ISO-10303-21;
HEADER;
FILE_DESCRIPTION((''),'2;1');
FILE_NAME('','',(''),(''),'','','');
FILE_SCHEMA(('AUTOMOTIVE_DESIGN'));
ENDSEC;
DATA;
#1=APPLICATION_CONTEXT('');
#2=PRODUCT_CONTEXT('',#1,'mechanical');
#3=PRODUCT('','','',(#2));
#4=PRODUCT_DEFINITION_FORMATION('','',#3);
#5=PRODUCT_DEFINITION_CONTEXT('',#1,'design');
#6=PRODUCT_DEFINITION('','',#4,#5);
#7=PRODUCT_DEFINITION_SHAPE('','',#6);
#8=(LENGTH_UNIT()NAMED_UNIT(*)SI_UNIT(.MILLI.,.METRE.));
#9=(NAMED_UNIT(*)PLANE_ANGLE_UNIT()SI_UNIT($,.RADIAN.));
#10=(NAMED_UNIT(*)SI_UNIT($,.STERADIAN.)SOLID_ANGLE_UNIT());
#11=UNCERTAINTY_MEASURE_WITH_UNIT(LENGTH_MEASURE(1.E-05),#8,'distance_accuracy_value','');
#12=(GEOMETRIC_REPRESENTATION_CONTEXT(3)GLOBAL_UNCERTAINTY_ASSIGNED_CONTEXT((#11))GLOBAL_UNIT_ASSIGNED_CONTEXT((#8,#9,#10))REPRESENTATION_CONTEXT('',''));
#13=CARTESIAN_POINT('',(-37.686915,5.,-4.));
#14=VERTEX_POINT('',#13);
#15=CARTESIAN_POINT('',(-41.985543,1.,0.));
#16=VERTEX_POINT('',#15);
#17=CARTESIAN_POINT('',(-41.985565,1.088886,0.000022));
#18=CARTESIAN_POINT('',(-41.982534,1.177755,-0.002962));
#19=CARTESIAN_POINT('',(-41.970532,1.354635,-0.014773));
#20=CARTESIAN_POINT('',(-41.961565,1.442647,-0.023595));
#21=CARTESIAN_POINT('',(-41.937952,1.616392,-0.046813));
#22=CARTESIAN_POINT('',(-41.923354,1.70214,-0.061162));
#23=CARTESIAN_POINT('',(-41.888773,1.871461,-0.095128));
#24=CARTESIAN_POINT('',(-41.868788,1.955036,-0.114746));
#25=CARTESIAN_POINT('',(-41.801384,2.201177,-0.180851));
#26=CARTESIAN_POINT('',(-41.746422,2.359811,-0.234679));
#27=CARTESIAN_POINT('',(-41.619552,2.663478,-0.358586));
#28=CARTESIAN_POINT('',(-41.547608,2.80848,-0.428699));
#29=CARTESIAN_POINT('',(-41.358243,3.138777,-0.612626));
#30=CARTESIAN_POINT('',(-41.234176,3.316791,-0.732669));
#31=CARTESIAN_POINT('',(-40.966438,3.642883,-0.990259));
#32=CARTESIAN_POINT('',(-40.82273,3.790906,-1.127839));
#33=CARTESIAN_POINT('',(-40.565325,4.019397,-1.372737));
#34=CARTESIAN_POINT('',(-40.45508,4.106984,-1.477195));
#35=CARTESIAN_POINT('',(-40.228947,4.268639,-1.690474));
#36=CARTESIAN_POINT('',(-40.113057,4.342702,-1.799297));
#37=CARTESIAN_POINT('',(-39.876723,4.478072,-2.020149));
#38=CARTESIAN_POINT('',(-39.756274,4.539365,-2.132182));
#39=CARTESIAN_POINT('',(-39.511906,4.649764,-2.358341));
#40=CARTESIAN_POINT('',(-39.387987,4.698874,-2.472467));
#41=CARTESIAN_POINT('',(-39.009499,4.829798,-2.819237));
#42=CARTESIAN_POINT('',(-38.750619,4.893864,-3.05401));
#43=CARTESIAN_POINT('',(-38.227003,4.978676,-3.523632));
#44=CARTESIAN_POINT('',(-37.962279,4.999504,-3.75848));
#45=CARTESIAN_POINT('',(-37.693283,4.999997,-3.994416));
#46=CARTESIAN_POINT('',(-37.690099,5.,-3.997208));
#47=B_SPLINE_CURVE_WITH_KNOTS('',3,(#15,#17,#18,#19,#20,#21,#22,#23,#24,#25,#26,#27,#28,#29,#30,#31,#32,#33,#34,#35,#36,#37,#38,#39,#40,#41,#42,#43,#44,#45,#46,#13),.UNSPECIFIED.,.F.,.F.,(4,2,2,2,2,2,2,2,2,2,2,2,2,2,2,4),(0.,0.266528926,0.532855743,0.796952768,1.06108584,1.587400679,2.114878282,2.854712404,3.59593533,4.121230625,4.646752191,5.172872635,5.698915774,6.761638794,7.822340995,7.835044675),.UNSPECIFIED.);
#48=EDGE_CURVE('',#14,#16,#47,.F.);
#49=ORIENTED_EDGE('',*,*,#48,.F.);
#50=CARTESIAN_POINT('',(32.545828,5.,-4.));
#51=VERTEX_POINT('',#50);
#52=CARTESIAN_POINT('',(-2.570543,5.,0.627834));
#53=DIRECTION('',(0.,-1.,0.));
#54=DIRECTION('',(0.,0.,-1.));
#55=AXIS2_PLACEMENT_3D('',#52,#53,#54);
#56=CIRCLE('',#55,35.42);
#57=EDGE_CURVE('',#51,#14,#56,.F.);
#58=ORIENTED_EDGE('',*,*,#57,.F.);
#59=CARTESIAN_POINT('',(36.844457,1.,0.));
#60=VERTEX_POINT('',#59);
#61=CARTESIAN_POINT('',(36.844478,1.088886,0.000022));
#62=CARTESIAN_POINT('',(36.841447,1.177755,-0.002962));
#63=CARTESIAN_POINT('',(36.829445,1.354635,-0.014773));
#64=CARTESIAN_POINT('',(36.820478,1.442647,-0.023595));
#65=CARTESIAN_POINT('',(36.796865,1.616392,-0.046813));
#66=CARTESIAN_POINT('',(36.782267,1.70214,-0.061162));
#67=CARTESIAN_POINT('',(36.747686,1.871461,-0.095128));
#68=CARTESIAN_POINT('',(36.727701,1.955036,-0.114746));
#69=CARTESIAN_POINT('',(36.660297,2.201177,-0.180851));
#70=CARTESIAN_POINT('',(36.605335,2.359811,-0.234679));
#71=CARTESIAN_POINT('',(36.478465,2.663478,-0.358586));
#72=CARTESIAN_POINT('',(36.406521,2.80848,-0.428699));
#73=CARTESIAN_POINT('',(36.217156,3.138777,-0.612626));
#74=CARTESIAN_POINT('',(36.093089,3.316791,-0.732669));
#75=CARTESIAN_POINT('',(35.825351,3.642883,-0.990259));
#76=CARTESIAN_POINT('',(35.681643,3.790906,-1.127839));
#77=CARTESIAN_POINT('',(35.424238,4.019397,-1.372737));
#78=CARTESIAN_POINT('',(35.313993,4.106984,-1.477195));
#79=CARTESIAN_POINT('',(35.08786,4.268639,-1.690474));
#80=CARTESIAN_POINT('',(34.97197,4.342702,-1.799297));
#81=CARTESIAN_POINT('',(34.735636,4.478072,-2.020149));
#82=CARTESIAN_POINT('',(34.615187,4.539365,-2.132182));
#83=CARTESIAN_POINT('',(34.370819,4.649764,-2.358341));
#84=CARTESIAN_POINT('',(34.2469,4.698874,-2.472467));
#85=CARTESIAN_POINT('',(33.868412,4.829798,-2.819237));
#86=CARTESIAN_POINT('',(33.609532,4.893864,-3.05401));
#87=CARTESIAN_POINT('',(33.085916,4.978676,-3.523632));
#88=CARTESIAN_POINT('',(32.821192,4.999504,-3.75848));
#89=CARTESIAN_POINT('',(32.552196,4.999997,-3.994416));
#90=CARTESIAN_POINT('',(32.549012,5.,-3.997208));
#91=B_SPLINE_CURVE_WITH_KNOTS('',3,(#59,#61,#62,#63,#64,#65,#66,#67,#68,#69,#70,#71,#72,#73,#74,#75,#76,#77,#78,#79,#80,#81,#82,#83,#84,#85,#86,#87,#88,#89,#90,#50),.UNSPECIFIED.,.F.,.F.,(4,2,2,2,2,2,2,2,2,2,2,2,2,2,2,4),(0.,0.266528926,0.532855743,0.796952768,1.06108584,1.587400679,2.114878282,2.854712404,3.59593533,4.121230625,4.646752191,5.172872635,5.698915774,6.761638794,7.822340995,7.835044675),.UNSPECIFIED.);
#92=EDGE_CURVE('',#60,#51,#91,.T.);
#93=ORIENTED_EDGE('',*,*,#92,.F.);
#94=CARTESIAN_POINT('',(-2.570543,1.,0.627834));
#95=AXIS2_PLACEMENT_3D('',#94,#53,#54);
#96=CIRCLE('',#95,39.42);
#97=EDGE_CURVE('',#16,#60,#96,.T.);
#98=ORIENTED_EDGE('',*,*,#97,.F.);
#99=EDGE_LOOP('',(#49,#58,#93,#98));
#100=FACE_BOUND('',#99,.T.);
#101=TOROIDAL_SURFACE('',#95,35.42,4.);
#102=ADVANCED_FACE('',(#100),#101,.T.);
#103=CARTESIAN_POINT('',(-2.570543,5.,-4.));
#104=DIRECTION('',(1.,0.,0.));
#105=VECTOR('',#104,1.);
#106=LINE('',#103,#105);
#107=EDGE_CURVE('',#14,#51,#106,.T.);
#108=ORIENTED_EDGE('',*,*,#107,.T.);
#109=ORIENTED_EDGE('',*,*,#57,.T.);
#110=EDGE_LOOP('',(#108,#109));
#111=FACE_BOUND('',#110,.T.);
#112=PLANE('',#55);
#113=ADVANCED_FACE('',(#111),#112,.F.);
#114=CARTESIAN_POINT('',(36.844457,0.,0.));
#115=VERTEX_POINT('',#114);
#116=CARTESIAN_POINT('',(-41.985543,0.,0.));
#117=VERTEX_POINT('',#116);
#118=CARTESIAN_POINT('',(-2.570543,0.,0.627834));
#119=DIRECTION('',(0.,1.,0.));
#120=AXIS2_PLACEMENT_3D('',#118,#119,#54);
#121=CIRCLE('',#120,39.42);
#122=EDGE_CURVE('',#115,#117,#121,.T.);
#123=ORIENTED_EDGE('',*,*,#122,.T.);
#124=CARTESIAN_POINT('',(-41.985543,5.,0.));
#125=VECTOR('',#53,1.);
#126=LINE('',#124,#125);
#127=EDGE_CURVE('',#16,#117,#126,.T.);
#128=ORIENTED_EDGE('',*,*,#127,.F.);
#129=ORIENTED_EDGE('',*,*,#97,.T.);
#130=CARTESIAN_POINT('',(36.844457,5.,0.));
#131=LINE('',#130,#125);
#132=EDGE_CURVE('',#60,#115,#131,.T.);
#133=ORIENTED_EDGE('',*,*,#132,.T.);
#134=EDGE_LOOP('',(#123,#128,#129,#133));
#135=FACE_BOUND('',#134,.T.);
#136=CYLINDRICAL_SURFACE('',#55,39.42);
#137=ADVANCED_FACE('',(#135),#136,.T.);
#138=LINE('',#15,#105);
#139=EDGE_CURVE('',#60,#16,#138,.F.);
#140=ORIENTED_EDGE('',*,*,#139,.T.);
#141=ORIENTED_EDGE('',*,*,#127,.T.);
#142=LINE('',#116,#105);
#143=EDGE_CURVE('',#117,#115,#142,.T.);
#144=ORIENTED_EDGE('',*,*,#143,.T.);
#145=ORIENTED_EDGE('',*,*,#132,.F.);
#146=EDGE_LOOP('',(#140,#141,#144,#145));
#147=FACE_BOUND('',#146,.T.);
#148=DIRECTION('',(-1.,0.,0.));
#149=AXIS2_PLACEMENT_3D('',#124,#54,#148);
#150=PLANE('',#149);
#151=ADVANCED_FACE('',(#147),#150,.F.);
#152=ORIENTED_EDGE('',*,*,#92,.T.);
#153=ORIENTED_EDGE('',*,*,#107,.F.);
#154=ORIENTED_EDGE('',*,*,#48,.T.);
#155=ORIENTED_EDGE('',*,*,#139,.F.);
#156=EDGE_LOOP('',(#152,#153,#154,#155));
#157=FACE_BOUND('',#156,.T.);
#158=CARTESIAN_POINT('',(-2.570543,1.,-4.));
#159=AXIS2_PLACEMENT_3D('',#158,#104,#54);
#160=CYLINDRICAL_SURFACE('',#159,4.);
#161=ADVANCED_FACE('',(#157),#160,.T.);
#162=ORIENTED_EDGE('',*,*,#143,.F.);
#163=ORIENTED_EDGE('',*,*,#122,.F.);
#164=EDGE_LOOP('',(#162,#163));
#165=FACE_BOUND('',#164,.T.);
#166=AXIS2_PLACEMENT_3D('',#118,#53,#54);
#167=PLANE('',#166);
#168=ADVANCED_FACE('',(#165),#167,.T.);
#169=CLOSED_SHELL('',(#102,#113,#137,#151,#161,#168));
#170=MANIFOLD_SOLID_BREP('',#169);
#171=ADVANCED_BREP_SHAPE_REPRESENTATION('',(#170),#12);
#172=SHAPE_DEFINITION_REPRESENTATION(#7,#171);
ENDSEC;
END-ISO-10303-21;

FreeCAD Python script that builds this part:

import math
import FreeCAD as App
import Part
import Sketcher


def edges_at(feature, points):
    """Names of the edges that pass closest to the given points."""
    edges = feature.Shape.Edges
    near = lambda p: min(range(len(edges)), key=lambda i: edges[i].distToShape(Part.Vertex(*p))[0])
    return sorted({f"Edge{near(p) + 1}" for p in points})

doc = App.newDocument("Part")
body = doc.addObject("PartDesign::Body", "Body")

# Sketch on XZ plane
sketch1 = doc.addObject("Sketcher::SketchObject", "Sketch")
body.addObject(sketch1)
sketch1.AttachmentSupport = (doc.XZ_Plane, [""])
sketch1.MapMode = "FlatFace"
sketch1.addGeometry(Part.LineSegment(App.Vector(-42, 0, 0), App.Vector(37, 0, 0)), False)
sketch1.addGeometry(Part.ArcOfCircle(Part.Circle(App.Vector(-3, 1, 0), App.Vector(0, 0, 1), 39), math.radians(-179), math.radians(-1)), False)
sketch1.addConstraint(Sketcher.Constraint("Coincident", 0, 1, 1, 1))
sketch1.addConstraint(Sketcher.Constraint("Coincident", 1, 2, 0, 2))
sketch1.addConstraint(Sketcher.Constraint("Horizontal", 0))
sketch1.addConstraint(Sketcher.Constraint("PointOnObject", 0, 1, -1))
sketch1.addConstraint(Sketcher.Constraint("Radius", 1, 39.42))
sketch1.addConstraint(Sketcher.Constraint("DistanceX", 0, 1, 0, 2, 78.83))
sketch1.addConstraint(Sketcher.Constraint("DistanceX", 1, 3, -1, 1, 2.570543))
pad1 = doc.addObject("PartDesign::Pad", "Pad")
body.addObject(pad1)
pad1.Profile = sketch1
pad1.Length = 5
pad1.Reversed = True
doc.recompute()

fillet = doc.addObject("PartDesign::Fillet", "Fillet")
body.addObject(fillet)
fillet.Base = (pad1, edges_at(pad1, [(-2.571, 5, -38.792), (-2.571, 5, 0)]))
fillet.Radius = 4

doc.recompute()
